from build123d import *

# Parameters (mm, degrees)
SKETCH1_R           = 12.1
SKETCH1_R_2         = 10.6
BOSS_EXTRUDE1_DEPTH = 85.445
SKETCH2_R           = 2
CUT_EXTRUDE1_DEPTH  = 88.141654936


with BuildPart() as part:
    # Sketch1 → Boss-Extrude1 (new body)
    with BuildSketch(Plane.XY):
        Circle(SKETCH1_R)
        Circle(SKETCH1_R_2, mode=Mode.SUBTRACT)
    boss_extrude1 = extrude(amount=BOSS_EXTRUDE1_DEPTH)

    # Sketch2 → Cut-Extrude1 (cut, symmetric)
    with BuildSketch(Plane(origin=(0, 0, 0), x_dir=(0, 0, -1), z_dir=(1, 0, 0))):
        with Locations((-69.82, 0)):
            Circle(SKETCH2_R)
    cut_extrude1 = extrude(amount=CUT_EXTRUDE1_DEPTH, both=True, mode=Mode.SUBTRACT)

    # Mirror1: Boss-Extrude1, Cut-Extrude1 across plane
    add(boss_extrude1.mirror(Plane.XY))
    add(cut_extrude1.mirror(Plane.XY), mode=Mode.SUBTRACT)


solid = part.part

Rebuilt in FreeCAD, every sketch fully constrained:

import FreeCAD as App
import Part
import Sketcher
Q = App.Units.Quantity

doc = App.newDocument("Part")
body = doc.addObject("PartDesign::Body", "Body")

sketch1 = body.newObject("Sketcher::SketchObject", "Sketch")
sketch1.AttachmentSupport = (doc.getObject("XY_Plane"), [""])
sketch1.MapMode = "FlatFace"
sketch1.addGeometry(Part.Circle(App.Vector(0, 0, 0), App.Vector(0, 0, 1), 12.1), False)
sketch1.addGeometry(Part.Circle(App.Vector(0, 0, 0), App.Vector(0, 0, 1), 10.6), False)
sketch1.addConstraint(Sketcher.Constraint("Coincident", 0, 3, -1, 1))
sketch1.addConstraint(Sketcher.Constraint("Coincident", 1, 3, -1, 1))
sketch1.addConstraint(Sketcher.Constraint("Diameter", 0, Q("24.2 mm")))
sketch1.addConstraint(Sketcher.Constraint("Diameter", 1, Q("21.2 mm")))
pad1 = body.newObject("PartDesign::Pad", "Pad")
pad1.Profile = sketch1
pad1.Length = 85.445

sketch2 = body.newObject("Sketcher::SketchObject", "Sketch001")
sketch2.AttachmentSupport = (doc.getObject("YZ_Plane"), [""])
sketch2.MapMode = "FlatFace"
sketch2.addGeometry(Part.Circle(App.Vector(0, 69.82, 0), App.Vector(0, 0, 1), 2), False)
sketch2.addConstraint(Sketcher.Constraint("PointOnObject", 0, 3, -2))
sketch2.addConstraint(Sketcher.Constraint("Diameter", 0, Q("4 mm")))
sketch2.addConstraint(Sketcher.Constraint("DistanceY", -1, 1, 0, 3, Q("69.82 mm")))
pocket1 = body.newObject("PartDesign::Pocket", "Pocket")
pocket1.Profile = sketch2
pocket1.Length = 176.28331
pocket1.Midplane = True
doc.recompute()

mirrored = body.newObject("PartDesign::Mirrored", "Mirrored")
mirrored.Originals = [pad1, pocket1]
mirrored.MirrorPlane = (doc.getObject("XY_Plane"), [""])
body.Tip = mirrored

doc.recompute()
